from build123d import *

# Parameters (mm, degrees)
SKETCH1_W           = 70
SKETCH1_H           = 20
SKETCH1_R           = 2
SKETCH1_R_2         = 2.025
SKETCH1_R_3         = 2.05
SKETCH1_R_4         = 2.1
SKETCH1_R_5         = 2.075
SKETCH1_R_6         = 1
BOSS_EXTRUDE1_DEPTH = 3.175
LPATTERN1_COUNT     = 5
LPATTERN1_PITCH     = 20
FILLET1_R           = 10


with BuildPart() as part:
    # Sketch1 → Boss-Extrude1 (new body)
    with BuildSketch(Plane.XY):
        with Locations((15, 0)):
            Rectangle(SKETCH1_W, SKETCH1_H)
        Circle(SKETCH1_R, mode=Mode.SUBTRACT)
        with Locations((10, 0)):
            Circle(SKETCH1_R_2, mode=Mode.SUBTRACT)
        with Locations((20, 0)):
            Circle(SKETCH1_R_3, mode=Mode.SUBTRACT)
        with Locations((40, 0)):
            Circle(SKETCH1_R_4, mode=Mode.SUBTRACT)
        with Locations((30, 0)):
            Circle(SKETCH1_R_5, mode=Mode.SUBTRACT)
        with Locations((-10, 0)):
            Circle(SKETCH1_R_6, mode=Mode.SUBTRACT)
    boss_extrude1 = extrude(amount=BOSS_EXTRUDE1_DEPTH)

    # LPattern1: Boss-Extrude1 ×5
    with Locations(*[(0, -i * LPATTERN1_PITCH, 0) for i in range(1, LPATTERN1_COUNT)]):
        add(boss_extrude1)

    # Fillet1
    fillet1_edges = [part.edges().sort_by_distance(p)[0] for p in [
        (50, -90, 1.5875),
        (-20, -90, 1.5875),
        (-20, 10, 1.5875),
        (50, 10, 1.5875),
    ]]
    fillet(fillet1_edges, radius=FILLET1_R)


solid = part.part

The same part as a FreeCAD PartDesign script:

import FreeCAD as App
import Part
import Sketcher
from FreeCAD import Vector


def edges_at(feature, points):
    """Names of the edges that pass closest to the given points."""
    edges = feature.Shape.Edges
    near = lambda p: min(range(len(edges)), key=lambda i: edges[i].distToShape(Part.Vertex(*p))[0])
    return sorted({f"Edge{near(p) + 1}" for p in points})

doc = App.newDocument("Part")
body = doc.addObject("PartDesign::Body", "Body")

sketch1 = body.newObject("Sketcher::SketchObject", "Sketch")
sketch1.AttachmentSupport = (doc.getObject("XY_Plane"), [""])
sketch1.MapMode = "FlatFace"
sketch1.addGeometry([
    Part.LineSegment(Vector(-20, 10, 0), Vector(-20, -10, 0)),
    Part.LineSegment(Vector(-20, -10, 0), Vector(50, -10, 0)),
    Part.LineSegment(Vector(50, -10, 0), Vector(50, 10, 0)),
    Part.LineSegment(Vector(50, 10, 0), Vector(-20, 10, 0)),
    Part.Circle(Vector(-10, 0, 0), Vector(0, 0, 1), 1),
    Part.Circle(Vector(0, 0, 0), Vector(0, 0, 1), 2),
    Part.Circle(Vector(10, 0, 0), Vector(0, 0, 1), 2),
    Part.Circle(Vector(20, 0, 0), Vector(0, 0, 1), 2),
    Part.Circle(Vector(30, 0, 0), Vector(0, 0, 1), 2.1),
    Part.Circle(Vector(40, 0, 0), Vector(0, 0, 1), 2.1),
], False)
sketch1.addConstraint([
    Sketcher.Constraint("Coincident", 0, 2, 1, 1),
    Sketcher.Constraint("Coincident", 1, 2, 2, 1),
    Sketcher.Constraint("Coincident", 2, 2, 3, 1),
    Sketcher.Constraint("Coincident", 3, 2, 0, 1),
    Sketcher.Constraint("Vertical", 0),
    Sketcher.Constraint("Horizontal", 1),
    Sketcher.Constraint("Vertical", 2),
    Sketcher.Constraint("Horizontal", 3),
    Sketcher.Constraint("Coincident", 5, 3, -1, 1),
    Sketcher.Constraint("Symmetric", 4, 3, 6, 3, -1, 1),
    Sketcher.Constraint("PointOnObject", 4, 3, -1),
    Sketcher.Constraint("PointOnObject", 7, 3, -1),
    Sketcher.Constraint("PointOnObject", 8, 3, -1),
    Sketcher.Constraint("PointOnObject", 9, 3, -1),
    Sketcher.Constraint("Diameter", 4, 2.0),
    Sketcher.Constraint("Diameter", 5, 4.0),
    Sketcher.Constraint("Diameter", 7, 4.1),
    Sketcher.Constraint("Diameter", 9, 4.2),
    Sketcher.Constraint("Diameter", 6, 4.05),
    Sketcher.Constraint("Diameter", 8, 4.15),
    Sketcher.Constraint("DistanceX", 1, 1, 1, 2, 70.0),
    Sketcher.Constraint("DistanceY", 0, 2, 0, 1, 20.0),
    Sketcher.Constraint("DistanceX", 4, 3, -1, 1, 10.0),
    Sketcher.Constraint("DistanceX", -1, 1, 7, 3, 20.0),
    Sketcher.Constraint("DistanceX", -1, 1, 8, 3, 30.0),
    Sketcher.Constraint("DistanceX", -1, 1, 9, 3, 40.0),
    Sketcher.Constraint("DistanceX", 0, 2, -1, 1, 20.0),
    Sketcher.Constraint("DistanceY", 0, 2, -1, 1, 10.0),
])
pad1 = body.newObject("PartDesign::Pad", "Pad")
pad1.Profile = sketch1
pad1.Length = 3.175
doc.recompute()

linearpattern = body.newObject("PartDesign::LinearPattern", "LinearPattern")
linearpattern.Originals = [pad1]
linearpattern.Direction = (doc.getObject("Y_Axis"), [""])
linearpattern.Mode = "offset"
linearpattern.Offset = 20
linearpattern.Occurrences = 5
linearpattern.Reversed = True
body.Tip = linearpattern
doc.recompute()

fillet = body.newObject("PartDesign::Fillet", "Fillet")
fillet.Base = (linearpattern, edges_at(linearpattern, [
    (50, -90, 1.587),
    (-20, -90, 1.587),
    (-20, 10, 1.587),
    (50, 10, 1.587),
]))
fillet.Radius = 10

doc.recompute()
